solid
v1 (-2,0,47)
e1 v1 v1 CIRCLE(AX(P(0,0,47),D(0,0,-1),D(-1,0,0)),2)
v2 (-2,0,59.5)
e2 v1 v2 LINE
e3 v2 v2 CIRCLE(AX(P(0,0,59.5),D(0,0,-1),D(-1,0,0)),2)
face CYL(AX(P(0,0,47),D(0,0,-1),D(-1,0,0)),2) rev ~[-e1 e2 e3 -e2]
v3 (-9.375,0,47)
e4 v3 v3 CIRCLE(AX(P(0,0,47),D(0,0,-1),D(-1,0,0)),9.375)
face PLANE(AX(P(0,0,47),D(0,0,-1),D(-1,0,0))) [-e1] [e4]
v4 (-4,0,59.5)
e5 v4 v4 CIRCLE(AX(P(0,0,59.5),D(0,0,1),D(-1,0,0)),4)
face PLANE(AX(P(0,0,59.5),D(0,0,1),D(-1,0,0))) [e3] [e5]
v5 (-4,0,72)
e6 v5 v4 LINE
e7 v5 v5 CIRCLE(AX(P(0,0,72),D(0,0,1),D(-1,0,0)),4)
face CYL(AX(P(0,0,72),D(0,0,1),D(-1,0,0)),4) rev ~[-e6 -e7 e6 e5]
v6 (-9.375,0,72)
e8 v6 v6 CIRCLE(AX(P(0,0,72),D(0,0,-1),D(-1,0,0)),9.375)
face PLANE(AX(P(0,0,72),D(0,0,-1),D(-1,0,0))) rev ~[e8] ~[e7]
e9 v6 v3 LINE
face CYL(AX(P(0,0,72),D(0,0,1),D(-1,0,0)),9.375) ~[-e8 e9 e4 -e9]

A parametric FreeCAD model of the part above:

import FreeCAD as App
import Part
import Sketcher
Q = App.Units.Quantity

doc = App.newDocument("Part")
body = doc.addObject("PartDesign::Body", "Body")

# Sketch on XY plane
sketch1 = body.newObject("Sketcher::SketchObject", "Sketch")
sketch1.AttachmentSupport = (doc.getObject("XY_Plane"), [""])
sketch1.MapMode = "FlatFace"
sketch1.addGeometry(Part.Circle(App.Vector(0, 0, 0), App.Vector(0, 0, 1), 9), False)
sketch1.addConstraint(Sketcher.Constraint("Coincident", 0, 3, -1, 1))
sketch1.addConstraint(Sketcher.Constraint("Diameter", 0, Q("18.75 mm")))
pad1 = body.newObject("PartDesign::Pad", "Pad")
pad1.Profile = sketch1
pad1.Length = 25

# Sketch on XY plane
sketch2 = body.newObject("Sketcher::SketchObject", "Sketch001")
sketch2.AttachmentSupport = (doc.getObject("XY_Plane"), [""])
sketch2.MapMode = "FlatFace"
sketch2.AttachmentOffset = App.Placement(App.Vector(0, 0, 25), App.Rotation())
sketch2.addGeometry(Part.Circle(App.Vector(0, 0, 0), App.Vector(0, 0, 1), 2), False)
sketch2.addConstraint(Sketcher.Constraint("Coincident", 0, 3, -1, 1))
sketch2.addConstraint(Sketcher.Constraint("Diameter", 0, Q("4 mm")))
pocket1 = body.newObject("PartDesign::Pocket", "Pocket")
pocket1.Profile = sketch2
pocket1.Length = 12.5

# Sketch on XY plane
sketch3 = body.newObject("Sketcher::SketchObject", "Sketch002")
sketch3.AttachmentSupport = (doc.getObject("XY_Plane"), [""])
sketch3.MapMode = "FlatFace"
sketch3.addGeometry(Part.Circle(App.Vector(0, 0, 0), App.Vector(0, 0, 1), 4), False)
sketch3.addConstraint(Sketcher.Constraint("Coincident", 0, 3, -1, 1))
sketch3.addConstraint(Sketcher.Constraint("Diameter", 0, Q("8 mm")))
pocket2 = body.newObject("PartDesign::Pocket", "Pocket001")
pocket2.Profile = sketch3
pocket2.Length = 12.5
pocket2.Reversed = True
body2 = doc.addObject("PartDesign::Body", "Body001")
doc.recompute()

body.Placement = App.Placement(App.Vector(0, 0, 72), App.Rotation(App.Vector(0, 1, 0), 180))
boolean = body2.newObject("PartDesign::Boolean", "Boolean")
boolean.Type = "Fuse"
boolean.addObjects([body])

doc.recompute()
